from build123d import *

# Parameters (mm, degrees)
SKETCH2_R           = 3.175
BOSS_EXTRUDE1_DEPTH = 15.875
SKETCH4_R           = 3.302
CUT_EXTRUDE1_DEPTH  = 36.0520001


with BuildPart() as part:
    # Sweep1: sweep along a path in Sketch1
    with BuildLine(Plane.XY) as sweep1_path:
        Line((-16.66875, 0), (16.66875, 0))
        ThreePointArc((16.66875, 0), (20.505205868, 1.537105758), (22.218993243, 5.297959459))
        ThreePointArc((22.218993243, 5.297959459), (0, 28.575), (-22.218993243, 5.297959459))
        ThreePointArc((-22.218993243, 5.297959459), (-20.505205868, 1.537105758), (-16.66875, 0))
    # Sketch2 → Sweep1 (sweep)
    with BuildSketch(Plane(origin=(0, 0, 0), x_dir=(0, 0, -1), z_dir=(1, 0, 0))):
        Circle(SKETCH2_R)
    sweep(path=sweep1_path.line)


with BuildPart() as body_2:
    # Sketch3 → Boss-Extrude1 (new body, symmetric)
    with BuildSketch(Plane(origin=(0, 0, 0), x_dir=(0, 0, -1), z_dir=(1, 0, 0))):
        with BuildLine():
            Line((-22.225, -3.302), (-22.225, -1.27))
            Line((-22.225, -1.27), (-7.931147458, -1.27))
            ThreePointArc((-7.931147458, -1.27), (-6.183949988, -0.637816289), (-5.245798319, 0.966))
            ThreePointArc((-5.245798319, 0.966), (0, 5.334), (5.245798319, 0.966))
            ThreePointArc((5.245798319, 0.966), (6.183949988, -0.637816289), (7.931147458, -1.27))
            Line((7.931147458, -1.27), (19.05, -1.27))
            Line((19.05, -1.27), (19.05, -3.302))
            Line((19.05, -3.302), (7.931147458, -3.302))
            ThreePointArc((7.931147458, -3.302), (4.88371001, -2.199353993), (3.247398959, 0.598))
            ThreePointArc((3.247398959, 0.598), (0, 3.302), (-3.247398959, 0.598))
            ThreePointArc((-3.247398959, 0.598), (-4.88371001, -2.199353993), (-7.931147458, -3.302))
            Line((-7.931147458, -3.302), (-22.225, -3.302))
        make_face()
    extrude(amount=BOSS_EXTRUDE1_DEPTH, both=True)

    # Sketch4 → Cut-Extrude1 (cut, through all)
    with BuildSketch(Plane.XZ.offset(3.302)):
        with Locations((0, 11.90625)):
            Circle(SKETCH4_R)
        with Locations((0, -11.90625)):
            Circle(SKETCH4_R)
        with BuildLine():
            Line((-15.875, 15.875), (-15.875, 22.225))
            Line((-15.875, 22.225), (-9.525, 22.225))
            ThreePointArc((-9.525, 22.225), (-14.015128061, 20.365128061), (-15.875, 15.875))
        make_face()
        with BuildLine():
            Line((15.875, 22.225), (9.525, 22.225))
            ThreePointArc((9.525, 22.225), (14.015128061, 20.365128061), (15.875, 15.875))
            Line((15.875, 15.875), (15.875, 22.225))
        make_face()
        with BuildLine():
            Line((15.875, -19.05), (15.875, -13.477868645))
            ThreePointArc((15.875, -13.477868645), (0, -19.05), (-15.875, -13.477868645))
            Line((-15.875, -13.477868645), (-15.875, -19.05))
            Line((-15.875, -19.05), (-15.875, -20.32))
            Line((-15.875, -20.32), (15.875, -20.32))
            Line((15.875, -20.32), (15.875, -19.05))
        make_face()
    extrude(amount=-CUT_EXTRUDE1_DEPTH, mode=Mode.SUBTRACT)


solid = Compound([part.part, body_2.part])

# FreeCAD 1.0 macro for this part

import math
import FreeCAD as App
import Part
import Sketcher
Q = App.Units.Quantity

doc = App.newDocument("Part")
body = doc.addObject("PartDesign::Body", "Body")

# Sketch on YZ plane
sketch1 = doc.addObject("Sketcher::SketchObject", "Sketch")
body.addObject(sketch1)
sketch1.AttachmentSupport = (doc.YZ_Plane, [""])
sketch1.MapMode = "FlatFace"
sketch1.addGeometry(Part.Circle(App.Vector(0, 0, 0), App.Vector(0, 0, 1), 3.2), False)
sketch1.addConstraint(Sketcher.Constraint("Coincident", 0, 3, -1, 1))
sketch1.addConstraint(Sketcher.Constraint("Diameter", 0, Q("0.25 in")))

# Sketch on XY plane
sketch2 = doc.addObject("Sketcher::SketchObject", "Sketch001")
body.addObject(sketch2)
sketch2.AttachmentSupport = (doc.XY_Plane, [""])
sketch2.MapMode = "FlatFace"
sketch2.addGeometry(Part.LineSegment(App.Vector(-17, 0, 0), App.Vector(17, 0, 0)), False)
sketch2.addGeometry(Part.ArcOfCircle(Part.Circle(App.Vector(17, 6, 0), App.Vector(0, 0, 1), 6), math.radians(-90), math.radians(-3)), False)
sketch2.addGeometry(Part.ArcOfCircle(Part.Circle(App.Vector(0, 6, 0), App.Vector(0, 0, 1), 22), math.radians(-3), math.radians(183)), False)
sketch2.addGeometry(Part.ArcOfCircle(Part.Circle(App.Vector(-17, 6, 0), App.Vector(0, 0, 1), 6), math.radians(-177), math.radians(-90)), False)
sketch2.addConstraint(Sketcher.Constraint("Tangent", 0, 2, 1, 1))
sketch2.addConstraint(Sketcher.Constraint("Tangent", 1, 2, 2, 1))
sketch2.addConstraint(Sketcher.Constraint("Tangent", 2, 2, 3, 1))
sketch2.addConstraint(Sketcher.Constraint("Tangent", 3, 2, 0, 1))
sketch2.addConstraint(Sketcher.Constraint("Horizontal", 0))
sketch2.addConstraint(Sketcher.Constraint("Equal", 1, 3))
sketch2.addConstraint(Sketcher.Constraint("Symmetric", 0, 2, 3, 2, -1, 1))
sketch2.addConstraint(Sketcher.Constraint("Radius", 1, Q("0.21875 in")))
sketch2.addConstraint(Sketcher.Constraint("DistanceX", 0, 1, 0, 2, Q("1.3125 in")))
sketch2.addConstraint(Sketcher.Constraint("Radius", 2, Q("22.24304 mm")))
doc.recompute()

additivepipe = doc.addObject("PartDesign::AdditivePipe", "AdditivePipe")
body.addObject(additivepipe)
additivepipe.Profile = sketch1
additivepipe.Spine = (sketch2, ["Edge1", "Edge2", "Edge3", "Edge4"])
body2 = doc.addObject("PartDesign::Body", "Body001")

# Sketch on YZ plane
sketch3 = doc.addObject("Sketcher::SketchObject", "Sketch002")
body2.addObject(sketch3)
sketch3.AttachmentSupport = (doc.getObject("YZ_Plane001"), [""])
sketch3.MapMode = "FlatFace"
sketch3.addGeometry(Part.LineSegment(App.Vector(-1.3, 22.2, 0), App.Vector(-3.3, 22.2, 0)), False)
sketch3.addGeometry(Part.LineSegment(App.Vector(-3.3, 22.2, 0), App.Vector(-3.3, 7.9, 0)), False)
sketch3.addGeometry(Part.ArcOfCircle(Part.Circle(App.Vector(1.5, 7.9, 0), App.Vector(0, 0, 1), 4.8), math.radians(180), math.radians(260)), False)
sketch3.addGeometry(Part.ArcOfCircle(Part.Circle(App.Vector(0, 0, 0), App.Vector(0, 0, 1), 3.3), math.radians(-80), math.radians(80)), False)
sketch3.addGeometry(Part.ArcOfCircle(Part.Circle(App.Vector(1.5, -7.9, 0), App.Vector(0, 0, 1), 4.8), math.radians(100), math.radians(180)), False)
sketch3.addGeometry(Part.LineSegment(App.Vector(-3.3, -7.9, 0), App.Vector(-3.3, -19.1, 0)), False)
sketch3.addGeometry(Part.LineSegment(App.Vector(-3.3, -19.1, 0), App.Vector(-1.3, -19.1, 0)), False)
sketch3.addGeometry(Part.LineSegment(App.Vector(-1.3, -19.1, 0), App.Vector(-1.3, -7.9, 0)), False)
sketch3.addGeometry(Part.ArcOfCircle(Part.Circle(App.Vector(1.5, -7.9, 0), App.Vector(0, 0, 1), 2.7), math.radians(100), math.radians(180)), False)
sketch3.addGeometry(Part.ArcOfCircle(Part.Circle(App.Vector(0, 0, 0), App.Vector(0, 0, 1), 5.3), math.radians(-80), math.radians(80)), False)
sketch3.addGeometry(Part.ArcOfCircle(Part.Circle(App.Vector(1.5, 7.9, 0), App.Vector(0, 0, 1), 2.7), math.radians(-180), math.radians(-100)), False)
sketch3.addGeometry(Part.LineSegment(App.Vector(-1.3, 7.9, 0), App.Vector(-1.3, 22.2, 0)), False)
sketch3.addConstraint(Sketcher.Constraint("Coincident", 0, 2, 1, 1))
sketch3.addConstraint(Sketcher.Constraint("Tangent", 1, 2, 2, 1))
sketch3.addConstraint(Sketcher.Constraint("Tangent", 2, 2, 3, 2))
sketch3.addConstraint(Sketcher.Constraint("Tangent", 3, 1, 4, 1))
sketch3.addConstraint(Sketcher.Constraint("Tangent", 4, 2, 5, 1))
sketch3.addConstraint(Sketcher.Constraint("Coincident", 5, 2, 6, 1))
sketch3.addConstraint(Sketcher.Constraint("Coincident", 6, 2, 7, 1))
sketch3.addConstraint(Sketcher.Constraint("Tangent", 7, 2, 8, 2))
sketch3.addConstraint(Sketcher.Constraint("Tangent", 8, 1, 9, 1))
sketch3.addConstraint(Sketcher.Constraint("Tangent", 9, 2, 10, 2))
sketch3.addConstraint(Sketcher.Constraint("Tangent", 10, 1, 11, 1))
sketch3.addConstraint(Sketcher.Constraint("Coincident", 11, 2, 0, 1))
sketch3.addConstraint(Sketcher.Constraint("Horizontal", 0))
sketch3.addConstraint(Sketcher.Constraint("Vertical", 1))
sketch3.addConstraint(Sketcher.Constraint("Vertical", 5))
sketch3.addConstraint(Sketcher.Constraint("Horizontal", 6))
sketch3.addConstraint(Sketcher.Constraint("Vertical", 7))
sketch3.addConstraint(Sketcher.Constraint("Vertical", 11))
sketch3.addConstraint(Sketcher.Constraint("Coincident", 3, 3, -1, 1))
sketch3.addConstraint(Sketcher.Constraint("Coincident", 9, 3, -1, 1))
sketch3.addConstraint(Sketcher.Constraint("Coincident", 8, 3, 4, 3))
sketch3.addConstraint(Sketcher.Constraint("Coincident", 10, 3, 2, 3))
sketch3.addConstraint(Sketcher.Constraint("Equal", 2, 4))
sketch3.addConstraint(Sketcher.Constraint("Vertical", 2, 3, 4, 3))
sketch3.addConstraint(Sketcher.Constraint("Radius", 3, Q("0.13 in")))
sketch3.addConstraint(Sketcher.Constraint("Radius", 9, Q("0.21 in")))
sketch3.addConstraint(Sketcher.Constraint("Radius", 2, Q("0.1875 in")))
sketch3.addConstraint(Sketcher.Constraint("DistanceX", 0, 2, -1, 1, Q("0.13 in")))
sketch3.addConstraint(Sketcher.Constraint("DistanceY", 5, 2, -1, 1, Q("0.75 in")))
sketch3.addConstraint(Sketcher.Constraint("DistanceY", -1, 1, 0, 2, Q("0.875 in")))
pad1 = doc.addObject("PartDesign::Pad", "Pad")
body2.addObject(pad1)
pad1.Profile = sketch3
pad1.Length = Q("1.25 in")
pad1.Midplane = True

# Sketch on XZ plane
sketch4 = doc.addObject("Sketcher::SketchObject", "Sketch003")
body2.addObject(sketch4)
sketch4.AttachmentSupport = (doc.getObject("XZ_Plane001"), [""])
sketch4.MapMode = "FlatFace"
sketch4.AttachmentOffset = App.Placement(App.Vector(0, 0, 0.13 * 25.4), App.Rotation())
sketch4.addGeometry(Part.Circle(App.Vector(0, 11.9, 0), App.Vector(0, 0, 1), 3.3), False)
sketch4.addGeometry(Part.Circle(App.Vector(0, -11.9, 0), App.Vector(0, 0, 1), 3.3), False)
sketch4.addGeometry(Part.LineSegment(App.Vector(-15.9, 22.2, 0), App.Vector(-15.9, 15.9, 0)), False)
sketch4.addGeometry(Part.ArcOfCircle(Part.Circle(App.Vector(-9.5, 15.9, 0), App.Vector(0, 0, 1), 6.3), math.radians(90), math.radians(180)), False)
sketch4.addGeometry(Part.LineSegment(App.Vector(-9.5, 22.2, 0), App.Vector(-15.9, 22.2, 0)), False)
sketch4.addGeometry(Part.LineSegment(App.Vector(15.9, 22.2, 0), App.Vector(9.5, 22.2, 0)), False)
sketch4.addGeometry(Part.ArcOfCircle(Part.Circle(App.Vector(9.5, 15.9, 0), App.Vector(0, 0, 1), 6.3), math.radians(0), math.radians(90)), False)
sketch4.addGeometry(Part.LineSegment(App.Vector(15.9, 15.9, 0), App.Vector(15.9, 22.2, 0)), False)
sketch4.addGeometry(Part.ArcOfCircle(Part.Circle(App.Vector(0, 6.3, 0), App.Vector(0, 0, 1), 25.4), math.radians(-129), math.radians(-51)), False)
sketch4.addGeometry(Part.LineSegment(App.Vector(-15.9, -13.5, 0), App.Vector(-15.9, -20.3, 0)), False)
sketch4.addGeometry(Part.LineSegment(App.Vector(-15.9, -20.3, 0), App.Vector(15.9, -20.3, 0)), False)
sketch4.addGeometry(Part.LineSegment(App.Vector(15.9, -20.3, 0), App.Vector(15.9, -13.5, 0)), False)
sketch4.addConstraint(Sketcher.Constraint("Tangent", 2, 2, 3, 2))
sketch4.addConstraint(Sketcher.Constraint("Tangent", 3, 1, 4, 1))
sketch4.addConstraint(Sketcher.Constraint("Coincident", 4, 2, 2, 1))
sketch4.addConstraint(Sketcher.Constraint("Tangent", 5, 2, 6, 2))
sketch4.addConstraint(Sketcher.Constraint("Tangent", 6, 1, 7, 1))
sketch4.addConstraint(Sketcher.Constraint("Coincident", 7, 2, 5, 1))
sketch4.addConstraint(Sketcher.Constraint("Coincident", 8, 1, 9, 1))
sketch4.addConstraint(Sketcher.Constraint("Coincident", 9, 2, 10, 1))
sketch4.addConstraint(Sketcher.Constraint("Coincident", 10, 2, 11, 1))
sketch4.addConstraint(Sketcher.Constraint("Coincident", 11, 2, 8, 2))
sketch4.addConstraint(Sketcher.Constraint("Vertical", 2))
sketch4.addConstraint(Sketcher.Constraint("Horizontal", 4))
sketch4.addConstraint(Sketcher.Constraint("Horizontal", 5))
sketch4.addConstraint(Sketcher.Constraint("Vertical", 7))
sketch4.addConstraint(Sketcher.Constraint("Vertical", 9))
sketch4.addConstraint(Sketcher.Constraint("Horizontal", 10))
sketch4.addConstraint(Sketcher.Constraint("Vertical", 11))
sketch4.addConstraint(Sketcher.Constraint("Equal", 0, 1))
sketch4.addConstraint(Sketcher.Constraint("Equal", 3, 6))
sketch4.addConstraint(Sketcher.Constraint("Symmetric", 0, 3, 1, 3, -1, 1))
sketch4.addConstraint(Sketcher.Constraint("Symmetric", 3, 3, 6, 3, -2))
sketch4.addConstraint(Sketcher.Constraint("Symmetric", 8, 1, 11, 2, -2))
sketch4.addConstraint(Sketcher.Constraint("PointOnObject", 0, 3, -2))
sketch4.addConstraint(Sketcher.Constraint("Vertical", 4, 2, 8, 1))
sketch4.addConstraint(Sketcher.Constraint("Radius", 8, Q("1 in")))
sketch4.addConstraint(Sketcher.Constraint("Diameter", 0, Q("0.26 in")))
sketch4.addConstraint(Sketcher.Constraint("Radius", 3, Q("0.25 in")))
sketch4.addConstraint(Sketcher.Constraint("DistanceX", 2, 2, 6, 3, Q("1 in")))
sketch4.addConstraint(Sketcher.Constraint("DistanceY", 9, 2, -1, 1, Q("0.8 in")))
sketch4.addConstraint(Sketcher.Constraint("DistanceY", -1, 1, 8, 3, Q("0.25 in")))
sketch4.addConstraint(Sketcher.Constraint("DistanceY", -1, 1, 0, 3, Q("0.46875 in")))
sketch4.addConstraint(Sketcher.Constraint("DistanceY", -1, 1, 3, 3, Q("0.625 in")))
pocket1 = doc.addObject("PartDesign::Pocket", "Pocket")
body2.addObject(pocket1)
pocket1.Profile = sketch4
pocket1.Type = "ThroughAll"

doc.recompute()
